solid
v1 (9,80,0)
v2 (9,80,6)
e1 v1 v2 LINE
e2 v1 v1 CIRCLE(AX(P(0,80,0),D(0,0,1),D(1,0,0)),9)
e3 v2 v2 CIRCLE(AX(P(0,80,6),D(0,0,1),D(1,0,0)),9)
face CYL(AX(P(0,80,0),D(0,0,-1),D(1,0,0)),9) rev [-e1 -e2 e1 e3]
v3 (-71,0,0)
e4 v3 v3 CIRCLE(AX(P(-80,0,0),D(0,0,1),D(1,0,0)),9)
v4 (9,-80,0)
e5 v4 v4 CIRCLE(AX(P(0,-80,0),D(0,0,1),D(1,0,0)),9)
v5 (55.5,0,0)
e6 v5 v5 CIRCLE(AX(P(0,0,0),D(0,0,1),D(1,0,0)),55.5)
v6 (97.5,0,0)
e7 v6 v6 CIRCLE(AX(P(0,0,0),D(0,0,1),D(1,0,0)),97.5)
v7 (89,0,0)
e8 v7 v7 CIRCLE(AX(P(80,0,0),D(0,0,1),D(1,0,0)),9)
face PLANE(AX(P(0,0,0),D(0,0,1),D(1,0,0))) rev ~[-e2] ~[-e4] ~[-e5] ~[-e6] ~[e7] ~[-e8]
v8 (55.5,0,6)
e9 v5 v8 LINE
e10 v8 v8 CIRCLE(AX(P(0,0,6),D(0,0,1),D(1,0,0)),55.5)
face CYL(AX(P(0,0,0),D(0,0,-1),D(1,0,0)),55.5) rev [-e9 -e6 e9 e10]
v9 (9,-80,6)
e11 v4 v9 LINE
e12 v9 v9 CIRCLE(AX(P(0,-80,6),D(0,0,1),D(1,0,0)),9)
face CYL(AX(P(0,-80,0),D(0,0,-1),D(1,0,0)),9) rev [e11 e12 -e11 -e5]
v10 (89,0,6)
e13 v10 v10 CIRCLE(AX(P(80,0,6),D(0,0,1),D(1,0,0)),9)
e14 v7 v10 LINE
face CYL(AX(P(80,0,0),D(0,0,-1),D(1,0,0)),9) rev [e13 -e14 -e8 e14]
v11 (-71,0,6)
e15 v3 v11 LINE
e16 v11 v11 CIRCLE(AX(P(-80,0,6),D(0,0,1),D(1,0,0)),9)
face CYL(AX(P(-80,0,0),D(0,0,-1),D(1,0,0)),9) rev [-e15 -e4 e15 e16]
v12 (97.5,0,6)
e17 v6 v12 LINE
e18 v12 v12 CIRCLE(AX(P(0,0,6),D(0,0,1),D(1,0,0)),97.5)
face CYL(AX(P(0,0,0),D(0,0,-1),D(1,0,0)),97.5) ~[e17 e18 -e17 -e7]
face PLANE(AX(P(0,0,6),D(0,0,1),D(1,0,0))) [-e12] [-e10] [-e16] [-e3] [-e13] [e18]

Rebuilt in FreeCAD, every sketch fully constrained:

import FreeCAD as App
import Part
import Sketcher
Q = App.Units.Quantity

doc = App.newDocument("Part")
body = doc.addObject("PartDesign::Body", "Body")

# Sketch on XY plane
sketch1 = body.newObject("Sketcher::SketchObject", "Sketch")
sketch1.AttachmentSupport = (doc.getObject("XY_Plane"), [""])
sketch1.MapMode = "FlatFace"
sketch1.addGeometry([
    Part.Circle(App.Vector(0, 0, 0), App.Vector(0, 0, 1), 98),  # 0
    Part.Circle(App.Vector(0, -80, 0), App.Vector(0, 0, 1), 9),  # 1
    Part.Circle(App.Vector(-80, 0, 0), App.Vector(0, 0, 1), 9),  # 2
    Part.Circle(App.Vector(0, 0, 0), App.Vector(0, 0, 1), 56),  # 3
    Part.Circle(App.Vector(80, 0, 0), App.Vector(0, 0, 1), 9),  # 4
    Part.Circle(App.Vector(0, 80, 0), App.Vector(0, 0, 1), 9),  # 5
], False)
sketch1.addConstraint([
    Sketcher.Constraint("Coincident", 0, 3, -1, 1),
    Sketcher.Constraint("Coincident", 3, 3, -1, 1),
    Sketcher.Constraint("Equal", 1, 2),
    Sketcher.Constraint("Equal", 2, 4),
    Sketcher.Constraint("Equal", 4, 5),
    Sketcher.Constraint("Symmetric", 2, 3, 4, 3, -1, 1),
    Sketcher.Constraint("Symmetric", 1, 3, 5, 3, -1, 1),
    Sketcher.Constraint("PointOnObject", 1, 3, -2),
    Sketcher.Constraint("PointOnObject", 2, 3, -1),
    Sketcher.Constraint("Diameter", 0, Q("195 mm")),
    Sketcher.Constraint("Diameter", 1, Q("18 mm")),
    Sketcher.Constraint("Diameter", 3, Q("111 mm")),
    Sketcher.Constraint("DistanceX", 2, 3, 4, 3, Q("160 mm")),
    Sketcher.Constraint("DistanceY", 1, 3, 5, 3, Q("160 mm")),
])
pad1 = body.newObject("PartDesign::Pad", "Pad")
pad1.Profile = sketch1
pad1.Length = 6

doc.recompute()
